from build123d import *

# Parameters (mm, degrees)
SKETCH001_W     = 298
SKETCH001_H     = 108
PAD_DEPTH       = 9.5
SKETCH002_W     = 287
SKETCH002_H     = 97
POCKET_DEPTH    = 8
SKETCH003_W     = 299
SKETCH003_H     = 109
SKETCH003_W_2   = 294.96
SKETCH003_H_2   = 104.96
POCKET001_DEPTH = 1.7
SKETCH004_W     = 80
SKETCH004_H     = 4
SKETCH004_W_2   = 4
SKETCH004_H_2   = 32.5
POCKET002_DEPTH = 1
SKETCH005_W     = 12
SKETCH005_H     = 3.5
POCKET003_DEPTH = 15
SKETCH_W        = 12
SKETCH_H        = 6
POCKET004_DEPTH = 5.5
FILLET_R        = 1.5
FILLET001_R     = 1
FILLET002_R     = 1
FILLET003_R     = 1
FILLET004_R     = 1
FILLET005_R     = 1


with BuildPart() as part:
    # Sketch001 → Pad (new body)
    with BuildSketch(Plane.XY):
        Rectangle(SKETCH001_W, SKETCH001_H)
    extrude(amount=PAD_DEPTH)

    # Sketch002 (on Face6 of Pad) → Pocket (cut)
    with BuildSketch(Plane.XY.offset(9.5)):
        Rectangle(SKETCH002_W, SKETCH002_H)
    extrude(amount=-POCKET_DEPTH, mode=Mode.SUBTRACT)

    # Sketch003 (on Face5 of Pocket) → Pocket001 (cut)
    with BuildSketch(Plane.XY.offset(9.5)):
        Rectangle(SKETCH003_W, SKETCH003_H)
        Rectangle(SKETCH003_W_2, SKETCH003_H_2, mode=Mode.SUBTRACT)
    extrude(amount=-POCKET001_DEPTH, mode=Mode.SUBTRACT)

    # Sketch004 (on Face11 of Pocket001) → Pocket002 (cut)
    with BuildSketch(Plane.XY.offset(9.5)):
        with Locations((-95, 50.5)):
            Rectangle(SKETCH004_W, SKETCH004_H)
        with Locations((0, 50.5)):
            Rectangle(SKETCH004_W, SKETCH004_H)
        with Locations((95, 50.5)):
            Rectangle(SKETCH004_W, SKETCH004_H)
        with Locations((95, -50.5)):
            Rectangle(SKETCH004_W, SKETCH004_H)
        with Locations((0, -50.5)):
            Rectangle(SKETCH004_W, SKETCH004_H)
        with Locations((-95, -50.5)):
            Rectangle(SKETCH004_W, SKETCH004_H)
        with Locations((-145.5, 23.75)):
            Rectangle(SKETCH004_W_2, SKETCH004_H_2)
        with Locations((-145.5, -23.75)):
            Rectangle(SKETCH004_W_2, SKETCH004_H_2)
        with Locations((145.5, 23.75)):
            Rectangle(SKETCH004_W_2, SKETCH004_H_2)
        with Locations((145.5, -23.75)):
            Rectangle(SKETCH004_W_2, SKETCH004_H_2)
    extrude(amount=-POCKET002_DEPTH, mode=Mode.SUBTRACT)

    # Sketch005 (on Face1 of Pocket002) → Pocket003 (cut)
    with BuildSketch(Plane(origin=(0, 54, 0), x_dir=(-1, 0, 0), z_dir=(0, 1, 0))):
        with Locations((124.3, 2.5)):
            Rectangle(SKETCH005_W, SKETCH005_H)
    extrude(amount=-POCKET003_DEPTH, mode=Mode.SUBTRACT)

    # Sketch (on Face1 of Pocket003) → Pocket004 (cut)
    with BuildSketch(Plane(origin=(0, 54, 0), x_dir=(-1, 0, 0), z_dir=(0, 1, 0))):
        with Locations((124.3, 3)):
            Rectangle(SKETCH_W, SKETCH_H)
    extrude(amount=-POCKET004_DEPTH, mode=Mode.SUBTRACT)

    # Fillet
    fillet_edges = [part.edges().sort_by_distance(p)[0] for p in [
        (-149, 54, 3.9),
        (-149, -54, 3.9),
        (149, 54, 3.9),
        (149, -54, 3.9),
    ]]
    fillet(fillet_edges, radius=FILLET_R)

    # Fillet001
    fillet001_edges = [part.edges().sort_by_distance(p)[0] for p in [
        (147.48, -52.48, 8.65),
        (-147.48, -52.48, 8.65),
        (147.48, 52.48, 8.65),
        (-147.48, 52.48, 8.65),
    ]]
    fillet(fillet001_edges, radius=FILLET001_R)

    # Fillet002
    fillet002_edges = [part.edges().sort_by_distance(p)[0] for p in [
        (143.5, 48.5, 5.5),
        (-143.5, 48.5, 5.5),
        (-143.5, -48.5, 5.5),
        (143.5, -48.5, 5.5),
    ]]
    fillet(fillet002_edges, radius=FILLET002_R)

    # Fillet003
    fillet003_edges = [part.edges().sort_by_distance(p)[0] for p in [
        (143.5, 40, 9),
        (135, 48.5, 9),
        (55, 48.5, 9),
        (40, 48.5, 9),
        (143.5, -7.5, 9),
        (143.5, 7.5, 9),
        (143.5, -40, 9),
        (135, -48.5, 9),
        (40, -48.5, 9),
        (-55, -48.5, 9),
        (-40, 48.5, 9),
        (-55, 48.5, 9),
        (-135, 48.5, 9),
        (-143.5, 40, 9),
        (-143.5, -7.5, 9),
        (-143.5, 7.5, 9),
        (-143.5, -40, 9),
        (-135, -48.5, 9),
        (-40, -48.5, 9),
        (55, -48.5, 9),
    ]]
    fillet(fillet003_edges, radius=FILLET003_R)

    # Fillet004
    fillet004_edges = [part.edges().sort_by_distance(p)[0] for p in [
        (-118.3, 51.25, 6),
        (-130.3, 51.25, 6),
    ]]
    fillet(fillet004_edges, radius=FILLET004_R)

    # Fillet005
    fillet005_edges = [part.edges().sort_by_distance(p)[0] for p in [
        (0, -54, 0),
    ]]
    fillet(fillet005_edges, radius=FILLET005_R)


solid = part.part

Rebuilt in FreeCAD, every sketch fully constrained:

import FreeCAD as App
import Part
import Sketcher
from FreeCAD import Vector


def edges_at(feature, points):
    """Names of the edges that pass closest to the given points."""
    edges = feature.Shape.Edges
    near = lambda p: min(range(len(edges)), key=lambda i: edges[i].distToShape(Part.Vertex(*p))[0])
    return sorted({f"Edge{near(p) + 1}" for p in points})

doc = App.newDocument("Part")
body = doc.addObject("PartDesign::Body", "Body")

# Sketch on XY plane
sketch1 = body.newObject("Sketcher::SketchObject", "Sketch")
sketch1.AttachmentSupport = (doc.getObject("XY_Plane"), [""])
sketch1.MapMode = "FlatFace"
sketch1.addGeometry(Part.LineSegment(Vector(-149, 54, 0), Vector(-149, -54, 0)), False)
sketch1.addGeometry(Part.LineSegment(Vector(-149, -54, 0), Vector(149, -54, 0)), False)
sketch1.addGeometry(Part.LineSegment(Vector(149, -54, 0), Vector(149, 54, 0)), False)
sketch1.addGeometry(Part.LineSegment(Vector(149, 54, 0), Vector(-149, 54, 0)), False)
sketch1.addConstraint(Sketcher.Constraint("Coincident", 0, 2, 1, 1))
sketch1.addConstraint(Sketcher.Constraint("Coincident", 1, 2, 2, 1))
sketch1.addConstraint(Sketcher.Constraint("Coincident", 2, 2, 3, 1))
sketch1.addConstraint(Sketcher.Constraint("Coincident", 3, 2, 0, 1))
sketch1.addConstraint(Sketcher.Constraint("Vertical", 0))
sketch1.addConstraint(Sketcher.Constraint("Horizontal", 1))
sketch1.addConstraint(Sketcher.Constraint("Vertical", 2))
sketch1.addConstraint(Sketcher.Constraint("Horizontal", 3))
sketch1.addConstraint(Sketcher.Constraint("Symmetric", 0, 2, 2, 2, -1, 1))
sketch1.addConstraint(Sketcher.Constraint("DistanceX", 1, 1, 1, 2, 298.0))
sketch1.addConstraint(Sketcher.Constraint("DistanceY", 0, 2, 0, 1, 108.0))
pad1 = body.newObject("PartDesign::Pad", "Pad")
pad1.Profile = sketch1
pad1.Length = 9.5

# Sketch on XY plane
sketch2 = body.newObject("Sketcher::SketchObject", "Sketch001")
sketch2.AttachmentSupport = (doc.getObject("XY_Plane"), [""])
sketch2.MapMode = "FlatFace"
sketch2.AttachmentOffset = App.Placement(Vector(0, 0, 9.5), App.Rotation())
sketch2.addGeometry(Part.LineSegment(Vector(-143.5, 48.5, 0), Vector(-143.5, -48.5, 0)), False)
sketch2.addGeometry(Part.LineSegment(Vector(-143.5, -48.5, 0), Vector(143.5, -48.5, 0)), False)
sketch2.addGeometry(Part.LineSegment(Vector(143.5, -48.5, 0), Vector(143.5, 48.5, 0)), False)
sketch2.addGeometry(Part.LineSegment(Vector(143.5, 48.5, 0), Vector(-143.5, 48.5, 0)), False)
sketch2.addConstraint(Sketcher.Constraint("Coincident", 0, 2, 1, 1))
sketch2.addConstraint(Sketcher.Constraint("Coincident", 1, 2, 2, 1))
sketch2.addConstraint(Sketcher.Constraint("Coincident", 2, 2, 3, 1))
sketch2.addConstraint(Sketcher.Constraint("Coincident", 3, 2, 0, 1))
sketch2.addConstraint(Sketcher.Constraint("Vertical", 0))
sketch2.addConstraint(Sketcher.Constraint("Horizontal", 1))
sketch2.addConstraint(Sketcher.Constraint("Vertical", 2))
sketch2.addConstraint(Sketcher.Constraint("Horizontal", 3))
sketch2.addConstraint(Sketcher.Constraint("Symmetric", 0, 2, 2, 2, -1, 1))
sketch2.addConstraint(Sketcher.Constraint("DistanceX", 1, 1, 1, 2, 287.0))
sketch2.addConstraint(Sketcher.Constraint("DistanceY", 0, 2, 0, 1, 97.0))
pocket1 = body.newObject("PartDesign::Pocket", "Pocket")
pocket1.Profile = sketch2
pocket1.Length = 8

# Sketch on XY plane
sketch3 = body.newObject("Sketcher::SketchObject", "Sketch002")
sketch3.AttachmentSupport = (doc.getObject("XY_Plane"), [""])
sketch3.MapMode = "FlatFace"
sketch3.AttachmentOffset = App.Placement(Vector(0, 0, 9.5), App.Rotation())
sketch3.addGeometry(Part.LineSegment(Vector(-149.5, 54.5, 0), Vector(-149.5, -54.5, 0)), False)
sketch3.addGeometry(Part.LineSegment(Vector(-149.5, -54.5, 0), Vector(149.5, -54.5, 0)), False)
sketch3.addGeometry(Part.LineSegment(Vector(149.5, -54.5, 0), Vector(149.5, 54.5, 0)), False)
sketch3.addGeometry(Part.LineSegment(Vector(149.5, 54.5, 0), Vector(-149.5, 54.5, 0)), False)
sketch3.addGeometry(Part.LineSegment(Vector(147.48, -52.48, 0), Vector(-147.48, -52.48, 0)), False)
sketch3.addGeometry(Part.LineSegment(Vector(-147.48, -52.48, 0), Vector(-147.48, 52.48, 0)), False)
sketch3.addGeometry(Part.LineSegment(Vector(-147.48, 52.48, 0), Vector(147.48, 52.48, 0)), False)
sketch3.addGeometry(Part.LineSegment(Vector(147.48, 52.48, 0), Vector(147.48, -52.48, 0)), False)
sketch3.addConstraint(Sketcher.Constraint("Coincident", 0, 2, 1, 1))
sketch3.addConstraint(Sketcher.Constraint("Coincident", 1, 2, 2, 1))
sketch3.addConstraint(Sketcher.Constraint("Coincident", 2, 2, 3, 1))
sketch3.addConstraint(Sketcher.Constraint("Coincident", 3, 2, 0, 1))
sketch3.addConstraint(Sketcher.Constraint("Coincident", 4, 2, 5, 1))
sketch3.addConstraint(Sketcher.Constraint("Coincident", 5, 2, 6, 1))
sketch3.addConstraint(Sketcher.Constraint("Coincident", 6, 2, 7, 1))
sketch3.addConstraint(Sketcher.Constraint("Coincident", 7, 2, 4, 1))
sketch3.addConstraint(Sketcher.Constraint("Vertical", 0))
sketch3.addConstraint(Sketcher.Constraint("Horizontal", 1))
sketch3.addConstraint(Sketcher.Constraint("Vertical", 2))
sketch3.addConstraint(Sketcher.Constraint("Horizontal", 3))
sketch3.addConstraint(Sketcher.Constraint("Horizontal", 4))
sketch3.addConstraint(Sketcher.Constraint("Vertical", 5))
sketch3.addConstraint(Sketcher.Constraint("Horizontal", 6))
sketch3.addConstraint(Sketcher.Constraint("Vertical", 7))
sketch3.addConstraint(Sketcher.Constraint("Symmetric", 0, 2, 2, 2, -1, 1))
sketch3.addConstraint(Sketcher.Constraint("Symmetric", 4, 2, 6, 2, -1, 1))
sketch3.addConstraint(Sketcher.Constraint("DistanceX", 1, 1, 1, 2, 299.0))
sketch3.addConstraint(Sketcher.Constraint("DistanceY", 0, 2, 0, 1, 109.0))
sketch3.addConstraint(Sketcher.Constraint("DistanceX", 4, 2, 4, 1, 294.96))
sketch3.addConstraint(Sketcher.Constraint("DistanceY", 5, 1, 5, 2, 104.96))
pocket2 = body.newObject("PartDesign::Pocket", "Pocket001")
pocket2.Profile = sketch3
pocket2.Length = 1.7

# Sketch on XY plane
sketch4 = body.newObject("Sketcher::SketchObject", "Sketch003")
sketch4.AttachmentSupport = (doc.getObject("XY_Plane"), [""])
sketch4.MapMode = "FlatFace"
sketch4.AttachmentOffset = App.Placement(Vector(0, 0, 9.5), App.Rotation())
sketch4.addGeometry(Part.LineSegment(Vector(-135, 52.5, 0), Vector(-135, 48.5, 0)), False)
sketch4.addGeometry(Part.LineSegment(Vector(-135, 48.5, 0), Vector(-55, 48.5, 0)), False)
sketch4.addGeometry(Part.LineSegment(Vector(-55, 48.5, 0), Vector(-55, 52.5, 0)), False)
sketch4.addGeometry(Part.LineSegment(Vector(-55, 52.5, 0), Vector(-135, 52.5, 0)), False)
sketch4.addGeometry(Part.LineSegment(Vector(-40, 52.5, 0), Vector(-40, 48.5, 0)), False)
sketch4.addGeometry(Part.LineSegment(Vector(-40, 48.5, 0), Vector(40, 48.5, 0)), False)
sketch4.addGeometry(Part.LineSegment(Vector(40, 48.5, 0), Vector(40, 52.5, 0)), False)
sketch4.addGeometry(Part.LineSegment(Vector(40, 52.5, 0), Vector(-40, 52.5, 0)), False)
sketch4.addGeometry(Part.LineSegment(Vector(55, 52.5, 0), Vector(55, 48.5, 0)), False)
sketch4.addGeometry(Part.LineSegment(Vector(55, 48.5, 0), Vector(135, 48.5, 0)), False)
sketch4.addGeometry(Part.LineSegment(Vector(135, 48.5, 0), Vector(135, 52.5, 0)), False)
sketch4.addGeometry(Part.LineSegment(Vector(135, 52.5, 0), Vector(55, 52.5, 0)), False)
sketch4.addGeometry(Part.LineSegment(Vector(55, -48.5, 0), Vector(55, -52.5, 0)), False)
sketch4.addGeometry(Part.LineSegment(Vector(55, -52.5, 0), Vector(135, -52.5, 0)), False)
sketch4.addGeometry(Part.LineSegment(Vector(135, -52.5, 0), Vector(135, -48.5, 0)), False)
sketch4.addGeometry(Part.LineSegment(Vector(135, -48.5, 0), Vector(55, -48.5, 0)), False)
sketch4.addGeometry(Part.LineSegment(Vector(-40, -48.5, 0), Vector(-40, -52.5, 0)), False)
sketch4.addGeometry(Part.LineSegment(Vector(-40, -52.5, 0), Vector(40, -52.5, 0)), False)
sketch4.addGeometry(Part.LineSegment(Vector(40, -52.5, 0), Vector(40, -48.5, 0)), False)
sketch4.addGeometry(Part.LineSegment(Vector(40, -48.5, 0), Vector(-40, -48.5, 0)), False)
sketch4.addGeometry(Part.LineSegment(Vector(-135, -48.5, 0), Vector(-135, -52.5, 0)), False)
sketch4.addGeometry(Part.LineSegment(Vector(-135, -52.5, 0), Vector(-55, -52.5, 0)), False)
sketch4.addGeometry(Part.LineSegment(Vector(-55, -52.5, 0), Vector(-55, -48.5, 0)), False)
sketch4.addGeometry(Part.LineSegment(Vector(-55, -48.5, 0), Vector(-135, -48.5, 0)), False)
sketch4.addGeometry(Part.LineSegment(Vector(-147.5, 40, 0), Vector(-147.5, 7.5, 0)), False)
sketch4.addGeometry(Part.LineSegment(Vector(-147.5, 7.5, 0), Vector(-143.5, 7.5, 0)), False)
sketch4.addGeometry(Part.LineSegment(Vector(-143.5, 7.5, 0), Vector(-143.5, 40, 0)), False)
sketch4.addGeometry(Part.LineSegment(Vector(-143.5, 40, 0), Vector(-147.5, 40, 0)), False)
sketch4.addGeometry(Part.LineSegment(Vector(-147.5, -7.5, 0), Vector(-147.5, -40, 0)), False)
sketch4.addGeometry(Part.LineSegment(Vector(-147.5, -40, 0), Vector(-143.5, -40, 0)), False)
sketch4.addGeometry(Part.LineSegment(Vector(-143.5, -40, 0), Vector(-143.5, -7.5, 0)), False)
sketch4.addGeometry(Part.LineSegment(Vector(-143.5, -7.5, 0), Vector(-147.5, -7.5, 0)), False)
sketch4.addGeometry(Part.LineSegment(Vector(143.5, 40, 0), Vector(143.5, 7.5, 0)), False)
sketch4.addGeometry(Part.LineSegment(Vector(143.5, 7.5, 0), Vector(147.5, 7.5, 0)), False)
sketch4.addGeometry(Part.LineSegment(Vector(147.5, 7.5, 0), Vector(147.5, 40, 0)), False)
sketch4.addGeometry(Part.LineSegment(Vector(147.5, 40, 0), Vector(143.5, 40, 0)), False)
sketch4.addGeometry(Part.LineSegment(Vector(143.5, -7.5, 0), Vector(143.5, -40, 0)), False)
sketch4.addGeometry(Part.LineSegment(Vector(143.5, -40, 0), Vector(147.5, -40, 0)), False)
sketch4.addGeometry(Part.LineSegment(Vector(147.5, -40, 0), Vector(147.5, -7.5, 0)), False)
sketch4.addGeometry(Part.LineSegment(Vector(147.5, -7.5, 0), Vector(143.5, -7.5, 0)), False)
sketch4.addConstraint(Sketcher.Constraint("Coincident", 0, 2, 1, 1))
sketch4.addConstraint(Sketcher.Constraint("Coincident", 1, 2, 2, 1))
sketch4.addConstraint(Sketcher.Constraint("Coincident", 2, 2, 3, 1))
sketch4.addConstraint(Sketcher.Constraint("Coincident", 3, 2, 0, 1))
sketch4.addConstraint(Sketcher.Constraint("Coincident", 4, 2, 5, 1))
sketch4.addConstraint(Sketcher.Constraint("Coincident", 5, 2, 6, 1))
sketch4.addConstraint(Sketcher.Constraint("Coincident", 6, 2, 7, 1))
sketch4.addConstraint(Sketcher.Constraint("Coincident", 7, 2, 4, 1))
sketch4.addConstraint(Sketcher.Constraint("Coincident", 8, 2, 9, 1))
sketch4.addConstraint(Sketcher.Constraint("Coincident", 9, 2, 10, 1))
sketch4.addConstraint(Sketcher.Constraint("Coincident", 10, 2, 11, 1))
sketch4.addConstraint(Sketcher.Constraint("Coincident", 11, 2, 8, 1))
sketch4.addConstraint(Sketcher.Constraint("Coincident", 12, 2, 13, 1))
sketch4.addConstraint(Sketcher.Constraint("Coincident", 13, 2, 14, 1))
sketch4.addConstraint(Sketcher.Constraint("Coincident", 14, 2, 15, 1))
sketch4.addConstraint(Sketcher.Constraint("Coincident", 15, 2, 12, 1))
sketch4.addConstraint(Sketcher.Constraint("Coincident", 16, 2, 17, 1))
sketch4.addConstraint(Sketcher.Constraint("Coincident", 17, 2, 18, 1))
sketch4.addConstraint(Sketcher.Constraint("Coincident", 18, 2, 19, 1))
sketch4.addConstraint(Sketcher.Constraint("Coincident", 19, 2, 16, 1))
sketch4.addConstraint(Sketcher.Constraint("Coincident", 20, 2, 21, 1))
sketch4.addConstraint(Sketcher.Constraint("Coincident", 21, 2, 22, 1))
sketch4.addConstraint(Sketcher.Constraint("Coincident", 22, 2, 23, 1))
sketch4.addConstraint(Sketcher.Constraint("Coincident", 23, 2, 20, 1))
sketch4.addConstraint(Sketcher.Constraint("Coincident", 24, 2, 25, 1))
sketch4.addConstraint(Sketcher.Constraint("Coincident", 25, 2, 26, 1))
sketch4.addConstraint(Sketcher.Constraint("Coincident", 26, 2, 27, 1))
sketch4.addConstraint(Sketcher.Constraint("Coincident", 27, 2, 24, 1))
sketch4.addConstraint(Sketcher.Constraint("Coincident", 28, 2, 29, 1))
sketch4.addConstraint(Sketcher.Constraint("Coincident", 29, 2, 30, 1))
sketch4.addConstraint(Sketcher.Constraint("Coincident", 30, 2, 31, 1))
sketch4.addConstraint(Sketcher.Constraint("Coincident", 31, 2, 28, 1))
sketch4.addConstraint(Sketcher.Constraint("Coincident", 32, 2, 33, 1))
sketch4.addConstraint(Sketcher.Constraint("Coincident", 33, 2, 34, 1))
sketch4.addConstraint(Sketcher.Constraint("Coincident", 34, 2, 35, 1))
sketch4.addConstraint(Sketcher.Constraint("Coincident", 35, 2, 32, 1))
sketch4.addConstraint(Sketcher.Constraint("Coincident", 36, 2, 37, 1))
sketch4.addConstraint(Sketcher.Constraint("Coincident", 37, 2, 38, 1))
sketch4.addConstraint(Sketcher.Constraint("Coincident", 38, 2, 39, 1))
sketch4.addConstraint(Sketcher.Constraint("Coincident", 39, 2, 36, 1))
sketch4.addConstraint(Sketcher.Constraint("Vertical", 0))
sketch4.addConstraint(Sketcher.Constraint("Horizontal", 1))
sketch4.addConstraint(Sketcher.Constraint("Vertical", 2))
sketch4.addConstraint(Sketcher.Constraint("Horizontal", 3))
sketch4.addConstraint(Sketcher.Constraint("Vertical", 4))
sketch4.addConstraint(Sketcher.Constraint("Horizontal", 5))
sketch4.addConstraint(Sketcher.Constraint("Vertical", 6))
sketch4.addConstraint(Sketcher.Constraint("Horizontal", 7))
sketch4.addConstraint(Sketcher.Constraint("Vertical", 8))
sketch4.addConstraint(Sketcher.Constraint("Horizontal", 9))
sketch4.addConstraint(Sketcher.Constraint("Vertical", 10))
sketch4.addConstraint(Sketcher.Constraint("Horizontal", 11))
sketch4.addConstraint(Sketcher.Constraint("Vertical", 12))
sketch4.addConstraint(Sketcher.Constraint("Horizontal", 13))
sketch4.addConstraint(Sketcher.Constraint("Vertical", 14))
sketch4.addConstraint(Sketcher.Constraint("Horizontal", 15))
sketch4.addConstraint(Sketcher.Constraint("Vertical", 16))
sketch4.addConstraint(Sketcher.Constraint("Horizontal", 17))
sketch4.addConstraint(Sketcher.Constraint("Vertical", 18))
sketch4.addConstraint(Sketcher.Constraint("Horizontal", 19))
sketch4.addConstraint(Sketcher.Constraint("Vertical", 20))
sketch4.addConstraint(Sketcher.Constraint("Horizontal", 21))
sketch4.addConstraint(Sketcher.Constraint("Vertical", 22))
sketch4.addConstraint(Sketcher.Constraint("Horizontal", 23))
sketch4.addConstraint(Sketcher.Constraint("Vertical", 24))
sketch4.addConstraint(Sketcher.Constraint("Horizontal", 25))
sketch4.addConstraint(Sketcher.Constraint("Vertical", 26))
sketch4.addConstraint(Sketcher.Constraint("Horizontal", 27))
sketch4.addConstraint(Sketcher.Constraint("Vertical", 28))
sketch4.addConstraint(Sketcher.Constraint("Horizontal", 29))
sketch4.addConstraint(Sketcher.Constraint("Vertical", 30))
sketch4.addConstraint(Sketcher.Constraint("Horizontal", 31))
sketch4.addConstraint(Sketcher.Constraint("Vertical", 32))
sketch4.addConstraint(Sketcher.Constraint("Horizontal", 33))
sketch4.addConstraint(Sketcher.Constraint("Vertical", 34))
sketch4.addConstraint(Sketcher.Constraint("Horizontal", 35))
sketch4.addConstraint(Sketcher.Constraint("Vertical", 36))
sketch4.addConstraint(Sketcher.Constraint("Horizontal", 37))
sketch4.addConstraint(Sketcher.Constraint("Vertical", 38))
sketch4.addConstraint(Sketcher.Constraint("Horizontal", 39))
sketch4.addConstraint(Sketcher.Constraint("Symmetric", 2, 2, 12, 2, -1, 1))
sketch4.addConstraint(Sketcher.Constraint("Symmetric", 0, 2, 14, 2, -1, 1))
sketch4.addConstraint(Sketcher.Constraint("Symmetric", 6, 2, 16, 2, -1, 1))
sketch4.addConstraint(Sketcher.Constraint("Symmetric", 4, 2, 18, 2, -1, 1))
sketch4.addConstraint(Sketcher.Constraint("Symmetric", 10, 2, 20, 2, -1, 1))
sketch4.addConstraint(Sketcher.Constraint("Symmetric", 8, 2, 22, 2, -1, 1))
sketch4.addConstraint(Sketcher.Constraint("Symmetric", 30, 2, 32, 2, -1, 1))
sketch4.addConstraint(Sketcher.Constraint("Symmetric", 28, 2, 34, 2, -1, 1))
sketch4.addConstraint(Sketcher.Constraint("Symmetric", 26, 2, 36, 2, -1, 1))
sketch4.addConstraint(Sketcher.Constraint("Symmetric", 24, 2, 38, 2, -1, 1))
sketch4.addConstraint(Sketcher.Constraint("Symmetric", 1, 2, 8, 2, -2))
sketch4.addConstraint(Sketcher.Constraint("Symmetric", 3, 2, 10, 2, -2))
sketch4.addConstraint(Sketcher.Constraint("Symmetric", 25, 2, 32, 2, -2))
sketch4.addConstraint(Sketcher.Constraint("Symmetric", 27, 2, 34, 2, -2))
sketch4.addConstraint(Sketcher.Constraint("Horizontal", 1, 2, 4, 2))
sketch4.addConstraint(Sketcher.Constraint("Horizontal", 3, 2, 6, 2))
sketch4.addConstraint(Sketcher.Constraint("Vertical", 7, 2, 16, 2))
sketch4.addConstraint(Sketcher.Constraint("Equal", 3, 5))
sketch4.addConstraint(Sketcher.Constraint("Equal", 39, 0))
sketch4.addConstraint(Sketcher.Constraint("DistanceX", 1, 1, 1, 2, 80.0))
sketch4.addConstraint(Sketcher.Constraint("DistanceX", 25, 1, 25, 2, 4.0))
sketch4.addConstraint(Sketcher.Constraint("DistanceY", 24, 2, 24, 1, 32.5))
sketch4.addConstraint(Sketcher.Constraint("DistanceX", 0, 2, -1, 1, 135.0))
sketch4.addConstraint(Sketcher.Constraint("DistanceY", -1, 1, 26, 2, 40.0))
sketch4.addConstraint(Sketcher.Constraint("DistanceY", 12, 2, 8, 2, 101.0))
sketch4.addConstraint(Sketcher.Constraint("DistanceX", 24, 2, -1, 1, 147.5))
pocket3 = body.newObject("PartDesign::Pocket", "Pocket002")
pocket3.Profile = sketch4
pocket3.Length = 1

# Sketch on XZ plane
sketch5 = body.newObject("Sketcher::SketchObject", "Sketch004")
sketch5.AttachmentSupport = (doc.getObject("XZ_Plane"), [""])
sketch5.MapMode = "FlatFace"
sketch5.AttachmentOffset = App.Placement(Vector(0, 0, -54), App.Rotation())
sketch5.addGeometry(Part.LineSegment(Vector(-118.3, 4.25, 0), Vector(-118.3, 0.75, 0)), False)
sketch5.addGeometry(Part.LineSegment(Vector(-118.3, 0.75, 0), Vector(-130.3, 0.75, 0)), False)
sketch5.addGeometry(Part.LineSegment(Vector(-130.3, 0.75, 0), Vector(-130.3, 4.25, 0)), False)
sketch5.addGeometry(Part.LineSegment(Vector(-130.3, 4.25, 0), Vector(-118.3, 4.25, 0)), False)
sketch5.addConstraint(Sketcher.Constraint("Coincident", 0, 2, 1, 1))
sketch5.addConstraint(Sketcher.Constraint("Coincident", 1, 2, 2, 1))
sketch5.addConstraint(Sketcher.Constraint("Coincident", 2, 2, 3, 1))
sketch5.addConstraint(Sketcher.Constraint("Coincident", 3, 2, 0, 1))
sketch5.addConstraint(Sketcher.Constraint("Vertical", 0))
sketch5.addConstraint(Sketcher.Constraint("Horizontal", 1))
sketch5.addConstraint(Sketcher.Constraint("Vertical", 2))
sketch5.addConstraint(Sketcher.Constraint("Horizontal", 3))
sketch5.addConstraint(Sketcher.Constraint("DistanceX", 1, 2, 1, 1, 12.0))
sketch5.addConstraint(Sketcher.Constraint("DistanceY", 0, 2, 0, 1, 3.5))
sketch5.addConstraint(Sketcher.Constraint("DistanceX", 0, 2, -1, 1, 118.3))
sketch5.addConstraint(Sketcher.Constraint("DistanceY", -1, 1, 0, 2, 0.75))
pocket4 = body.newObject("PartDesign::Pocket", "Pocket003")
pocket4.Profile = sketch5
pocket4.Length = 15
pocket4.Reversed = True

# Sketch on XZ plane
sketch6 = body.newObject("Sketcher::SketchObject", "Sketch005")
sketch6.AttachmentSupport = (doc.getObject("XZ_Plane"), [""])
sketch6.MapMode = "FlatFace"
sketch6.AttachmentOffset = App.Placement(Vector(0, 0, -54), App.Rotation())
sketch6.addGeometry(Part.LineSegment(Vector(-118.3, 6, 0), Vector(-118.3, 0, 0)), False)
sketch6.addGeometry(Part.LineSegment(Vector(-118.3, 0, 0), Vector(-130.3, 0, 0)), False)
sketch6.addGeometry(Part.LineSegment(Vector(-130.3, 0, 0), Vector(-130.3, 6, 0)), False)
sketch6.addGeometry(Part.LineSegment(Vector(-130.3, 6, 0), Vector(-118.3, 6, 0)), False)
sketch6.addConstraint(Sketcher.Constraint("Coincident", 0, 2, 1, 1))
sketch6.addConstraint(Sketcher.Constraint("Coincident", 1, 2, 2, 1))
sketch6.addConstraint(Sketcher.Constraint("Coincident", 2, 2, 3, 1))
sketch6.addConstraint(Sketcher.Constraint("Coincident", 3, 2, 0, 1))
sketch6.addConstraint(Sketcher.Constraint("Vertical", 0))
sketch6.addConstraint(Sketcher.Constraint("Horizontal", 1))
sketch6.addConstraint(Sketcher.Constraint("Vertical", 2))
sketch6.addConstraint(Sketcher.Constraint("Horizontal", 3))
sketch6.addConstraint(Sketcher.Constraint("PointOnObject", 0, 2, -1))
sketch6.addConstraint(Sketcher.Constraint("DistanceX", 1, 2, 1, 1, 12.0))
sketch6.addConstraint(Sketcher.Constraint("DistanceY", 0, 2, 0, 1, 6.0))
sketch6.addConstraint(Sketcher.Constraint("DistanceX", 0, 2, -1, 1, 118.3))
pocket5 = body.newObject("PartDesign::Pocket", "Pocket004")
pocket5.Profile = sketch6
pocket5.Length = 5.5
pocket5.Reversed = True
doc.recompute()

fillet = body.newObject("PartDesign::Fillet", "Fillet")
fillet.Base = (pocket5, edges_at(pocket5, [
    (-149, 54, 3.9),
    (-149, -54, 3.9),
    (149, 54, 3.9),
    (149, -54, 3.9),
]))
fillet.Radius = 1.5
doc.recompute()

fillet2 = body.newObject("PartDesign::Fillet", "Fillet001")
fillet2.Base = (fillet, edges_at(fillet, [
    (147.48, -52.48, 8.65),
    (-147.48, -52.48, 8.65),
    (147.48, 52.48, 8.65),
    (-147.48, 52.48, 8.65),
]))
fillet2.Radius = 1
doc.recompute()

fillet3 = body.newObject("PartDesign::Fillet", "Fillet002")
fillet3.Base = (fillet2, edges_at(fillet2, [
    (143.5, 48.5, 5.5),
    (-143.5, 48.5, 5.5),
    (-143.5, -48.5, 5.5),
    (143.5, -48.5, 5.5),
]))
fillet3.Radius = 1
doc.recompute()

fillet4 = body.newObject("PartDesign::Fillet", "Fillet003")
fillet4.Base = (fillet3, edges_at(fillet3, [
    (143.5, 40, 9),
    (135, 48.5, 9),
    (55, 48.5, 9),
    (40, 48.5, 9),
    (143.5, -7.5, 9),
    (143.5, 7.5, 9),
    (143.5, -40, 9),
    (135, -48.5, 9),
    (40, -48.5, 9),
    (-55, -48.5, 9),
    (-40, 48.5, 9),
    (-55, 48.5, 9),
    (-135, 48.5, 9),
    (-143.5, 40, 9),
    (-143.5, -7.5, 9),
    (-143.5, 7.5, 9),
    (-143.5, -40, 9),
    (-135, -48.5, 9),
    (-40, -48.5, 9),
    (55, -48.5, 9),
]))
fillet4.Radius = 1
doc.recompute()

fillet5 = body.newObject("PartDesign::Fillet", "Fillet004")
fillet5.Base = (fillet4, edges_at(fillet4, [(-118.3, 51.25, 6), (-130.3, 51.25, 6)]))
fillet5.Radius = 1
doc.recompute()

fillet6 = body.newObject("PartDesign::Fillet", "Fillet005")
fillet6.Base = (fillet5, edges_at(fillet5, [(0, -54, 0)]))
fillet6.Radius = 1

doc.recompute()
